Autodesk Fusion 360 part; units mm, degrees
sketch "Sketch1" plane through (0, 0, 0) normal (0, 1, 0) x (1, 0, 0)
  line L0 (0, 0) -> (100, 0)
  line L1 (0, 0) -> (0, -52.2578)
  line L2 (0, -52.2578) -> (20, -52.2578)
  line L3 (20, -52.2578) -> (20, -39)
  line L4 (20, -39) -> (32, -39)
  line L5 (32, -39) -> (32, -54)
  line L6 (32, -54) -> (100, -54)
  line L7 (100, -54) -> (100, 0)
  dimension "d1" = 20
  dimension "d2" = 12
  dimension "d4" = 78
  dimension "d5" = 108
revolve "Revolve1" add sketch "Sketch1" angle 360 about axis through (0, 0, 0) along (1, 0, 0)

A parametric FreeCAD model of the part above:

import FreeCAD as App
import Part
import Sketcher

V = App.Vector
Q = App.Units.Quantity


def add_polygon(sketch, points):
    """Adds a closed chain of lines whose ends are joined by coincident constraints."""
    first, n = sketch.GeometryCount, len(points)
    for a, b in zip(points, points[1:] + points[:1]):
        sketch.addGeometry(Part.LineSegment(App.Vector(*a, 0), App.Vector(*b, 0)), False)
    for i in range(n):
        sketch.addConstraint(Sketcher.Constraint("Coincident", first + i, 2, first + (i + 1) % n, 1))

doc = App.newDocument("Part")
body = doc.addObject("PartDesign::Body", "Body")

# Sketch on XZ plane
sketch1 = body.newObject("Sketcher::SketchObject", "Sketch")
sketch1.AttachmentSupport = (doc.getObject("XZ_Plane"), [""])
sketch1.MapMode = "FlatFace"
add_polygon(sketch1, [(100, 0), (0, 0), (0, 52), (20, 52), (20, 39), (32, 39), (32, 54), (100, 54)])  # lines 0-7
sketch1.addConstraint([
    Sketcher.Constraint("Horizontal", 0),
    Sketcher.Constraint("Vertical", 1),
    Sketcher.Constraint("Horizontal", 2),
    Sketcher.Constraint("Vertical", 3),
    Sketcher.Constraint("Horizontal", 4),
    Sketcher.Constraint("Vertical", 5),
    Sketcher.Constraint("Horizontal", 6),
    Sketcher.Constraint("Vertical", 7),
    Sketcher.Constraint("Coincident", 0, 2, -1, 1),
    Sketcher.Constraint("DistanceX", 2, 1, 2, 2, Q("20 mm")),
    Sketcher.Constraint("DistanceX", 4, 1, 4, 2, Q("12 mm")),
    Sketcher.Constraint("DistanceX", 0, 2, 0, 1, Q("100 mm")),
    Sketcher.Constraint("DistanceY", 5, 1, 5, 2, Q("15 mm")),
    Sketcher.Constraint("DistanceY", 7, 2, 7, 1, Q("54 mm")),
    Sketcher.Constraint("DistanceY", 1, 1, 1, 2, Q("52.2578 mm")),
])
revolution = body.newObject("PartDesign::Revolution", "Revolution")
revolution.Profile = sketch1
revolution.ReferenceAxis = (sketch1, ["H_Axis"])
revolution.Angle = 360

doc.recompute()
